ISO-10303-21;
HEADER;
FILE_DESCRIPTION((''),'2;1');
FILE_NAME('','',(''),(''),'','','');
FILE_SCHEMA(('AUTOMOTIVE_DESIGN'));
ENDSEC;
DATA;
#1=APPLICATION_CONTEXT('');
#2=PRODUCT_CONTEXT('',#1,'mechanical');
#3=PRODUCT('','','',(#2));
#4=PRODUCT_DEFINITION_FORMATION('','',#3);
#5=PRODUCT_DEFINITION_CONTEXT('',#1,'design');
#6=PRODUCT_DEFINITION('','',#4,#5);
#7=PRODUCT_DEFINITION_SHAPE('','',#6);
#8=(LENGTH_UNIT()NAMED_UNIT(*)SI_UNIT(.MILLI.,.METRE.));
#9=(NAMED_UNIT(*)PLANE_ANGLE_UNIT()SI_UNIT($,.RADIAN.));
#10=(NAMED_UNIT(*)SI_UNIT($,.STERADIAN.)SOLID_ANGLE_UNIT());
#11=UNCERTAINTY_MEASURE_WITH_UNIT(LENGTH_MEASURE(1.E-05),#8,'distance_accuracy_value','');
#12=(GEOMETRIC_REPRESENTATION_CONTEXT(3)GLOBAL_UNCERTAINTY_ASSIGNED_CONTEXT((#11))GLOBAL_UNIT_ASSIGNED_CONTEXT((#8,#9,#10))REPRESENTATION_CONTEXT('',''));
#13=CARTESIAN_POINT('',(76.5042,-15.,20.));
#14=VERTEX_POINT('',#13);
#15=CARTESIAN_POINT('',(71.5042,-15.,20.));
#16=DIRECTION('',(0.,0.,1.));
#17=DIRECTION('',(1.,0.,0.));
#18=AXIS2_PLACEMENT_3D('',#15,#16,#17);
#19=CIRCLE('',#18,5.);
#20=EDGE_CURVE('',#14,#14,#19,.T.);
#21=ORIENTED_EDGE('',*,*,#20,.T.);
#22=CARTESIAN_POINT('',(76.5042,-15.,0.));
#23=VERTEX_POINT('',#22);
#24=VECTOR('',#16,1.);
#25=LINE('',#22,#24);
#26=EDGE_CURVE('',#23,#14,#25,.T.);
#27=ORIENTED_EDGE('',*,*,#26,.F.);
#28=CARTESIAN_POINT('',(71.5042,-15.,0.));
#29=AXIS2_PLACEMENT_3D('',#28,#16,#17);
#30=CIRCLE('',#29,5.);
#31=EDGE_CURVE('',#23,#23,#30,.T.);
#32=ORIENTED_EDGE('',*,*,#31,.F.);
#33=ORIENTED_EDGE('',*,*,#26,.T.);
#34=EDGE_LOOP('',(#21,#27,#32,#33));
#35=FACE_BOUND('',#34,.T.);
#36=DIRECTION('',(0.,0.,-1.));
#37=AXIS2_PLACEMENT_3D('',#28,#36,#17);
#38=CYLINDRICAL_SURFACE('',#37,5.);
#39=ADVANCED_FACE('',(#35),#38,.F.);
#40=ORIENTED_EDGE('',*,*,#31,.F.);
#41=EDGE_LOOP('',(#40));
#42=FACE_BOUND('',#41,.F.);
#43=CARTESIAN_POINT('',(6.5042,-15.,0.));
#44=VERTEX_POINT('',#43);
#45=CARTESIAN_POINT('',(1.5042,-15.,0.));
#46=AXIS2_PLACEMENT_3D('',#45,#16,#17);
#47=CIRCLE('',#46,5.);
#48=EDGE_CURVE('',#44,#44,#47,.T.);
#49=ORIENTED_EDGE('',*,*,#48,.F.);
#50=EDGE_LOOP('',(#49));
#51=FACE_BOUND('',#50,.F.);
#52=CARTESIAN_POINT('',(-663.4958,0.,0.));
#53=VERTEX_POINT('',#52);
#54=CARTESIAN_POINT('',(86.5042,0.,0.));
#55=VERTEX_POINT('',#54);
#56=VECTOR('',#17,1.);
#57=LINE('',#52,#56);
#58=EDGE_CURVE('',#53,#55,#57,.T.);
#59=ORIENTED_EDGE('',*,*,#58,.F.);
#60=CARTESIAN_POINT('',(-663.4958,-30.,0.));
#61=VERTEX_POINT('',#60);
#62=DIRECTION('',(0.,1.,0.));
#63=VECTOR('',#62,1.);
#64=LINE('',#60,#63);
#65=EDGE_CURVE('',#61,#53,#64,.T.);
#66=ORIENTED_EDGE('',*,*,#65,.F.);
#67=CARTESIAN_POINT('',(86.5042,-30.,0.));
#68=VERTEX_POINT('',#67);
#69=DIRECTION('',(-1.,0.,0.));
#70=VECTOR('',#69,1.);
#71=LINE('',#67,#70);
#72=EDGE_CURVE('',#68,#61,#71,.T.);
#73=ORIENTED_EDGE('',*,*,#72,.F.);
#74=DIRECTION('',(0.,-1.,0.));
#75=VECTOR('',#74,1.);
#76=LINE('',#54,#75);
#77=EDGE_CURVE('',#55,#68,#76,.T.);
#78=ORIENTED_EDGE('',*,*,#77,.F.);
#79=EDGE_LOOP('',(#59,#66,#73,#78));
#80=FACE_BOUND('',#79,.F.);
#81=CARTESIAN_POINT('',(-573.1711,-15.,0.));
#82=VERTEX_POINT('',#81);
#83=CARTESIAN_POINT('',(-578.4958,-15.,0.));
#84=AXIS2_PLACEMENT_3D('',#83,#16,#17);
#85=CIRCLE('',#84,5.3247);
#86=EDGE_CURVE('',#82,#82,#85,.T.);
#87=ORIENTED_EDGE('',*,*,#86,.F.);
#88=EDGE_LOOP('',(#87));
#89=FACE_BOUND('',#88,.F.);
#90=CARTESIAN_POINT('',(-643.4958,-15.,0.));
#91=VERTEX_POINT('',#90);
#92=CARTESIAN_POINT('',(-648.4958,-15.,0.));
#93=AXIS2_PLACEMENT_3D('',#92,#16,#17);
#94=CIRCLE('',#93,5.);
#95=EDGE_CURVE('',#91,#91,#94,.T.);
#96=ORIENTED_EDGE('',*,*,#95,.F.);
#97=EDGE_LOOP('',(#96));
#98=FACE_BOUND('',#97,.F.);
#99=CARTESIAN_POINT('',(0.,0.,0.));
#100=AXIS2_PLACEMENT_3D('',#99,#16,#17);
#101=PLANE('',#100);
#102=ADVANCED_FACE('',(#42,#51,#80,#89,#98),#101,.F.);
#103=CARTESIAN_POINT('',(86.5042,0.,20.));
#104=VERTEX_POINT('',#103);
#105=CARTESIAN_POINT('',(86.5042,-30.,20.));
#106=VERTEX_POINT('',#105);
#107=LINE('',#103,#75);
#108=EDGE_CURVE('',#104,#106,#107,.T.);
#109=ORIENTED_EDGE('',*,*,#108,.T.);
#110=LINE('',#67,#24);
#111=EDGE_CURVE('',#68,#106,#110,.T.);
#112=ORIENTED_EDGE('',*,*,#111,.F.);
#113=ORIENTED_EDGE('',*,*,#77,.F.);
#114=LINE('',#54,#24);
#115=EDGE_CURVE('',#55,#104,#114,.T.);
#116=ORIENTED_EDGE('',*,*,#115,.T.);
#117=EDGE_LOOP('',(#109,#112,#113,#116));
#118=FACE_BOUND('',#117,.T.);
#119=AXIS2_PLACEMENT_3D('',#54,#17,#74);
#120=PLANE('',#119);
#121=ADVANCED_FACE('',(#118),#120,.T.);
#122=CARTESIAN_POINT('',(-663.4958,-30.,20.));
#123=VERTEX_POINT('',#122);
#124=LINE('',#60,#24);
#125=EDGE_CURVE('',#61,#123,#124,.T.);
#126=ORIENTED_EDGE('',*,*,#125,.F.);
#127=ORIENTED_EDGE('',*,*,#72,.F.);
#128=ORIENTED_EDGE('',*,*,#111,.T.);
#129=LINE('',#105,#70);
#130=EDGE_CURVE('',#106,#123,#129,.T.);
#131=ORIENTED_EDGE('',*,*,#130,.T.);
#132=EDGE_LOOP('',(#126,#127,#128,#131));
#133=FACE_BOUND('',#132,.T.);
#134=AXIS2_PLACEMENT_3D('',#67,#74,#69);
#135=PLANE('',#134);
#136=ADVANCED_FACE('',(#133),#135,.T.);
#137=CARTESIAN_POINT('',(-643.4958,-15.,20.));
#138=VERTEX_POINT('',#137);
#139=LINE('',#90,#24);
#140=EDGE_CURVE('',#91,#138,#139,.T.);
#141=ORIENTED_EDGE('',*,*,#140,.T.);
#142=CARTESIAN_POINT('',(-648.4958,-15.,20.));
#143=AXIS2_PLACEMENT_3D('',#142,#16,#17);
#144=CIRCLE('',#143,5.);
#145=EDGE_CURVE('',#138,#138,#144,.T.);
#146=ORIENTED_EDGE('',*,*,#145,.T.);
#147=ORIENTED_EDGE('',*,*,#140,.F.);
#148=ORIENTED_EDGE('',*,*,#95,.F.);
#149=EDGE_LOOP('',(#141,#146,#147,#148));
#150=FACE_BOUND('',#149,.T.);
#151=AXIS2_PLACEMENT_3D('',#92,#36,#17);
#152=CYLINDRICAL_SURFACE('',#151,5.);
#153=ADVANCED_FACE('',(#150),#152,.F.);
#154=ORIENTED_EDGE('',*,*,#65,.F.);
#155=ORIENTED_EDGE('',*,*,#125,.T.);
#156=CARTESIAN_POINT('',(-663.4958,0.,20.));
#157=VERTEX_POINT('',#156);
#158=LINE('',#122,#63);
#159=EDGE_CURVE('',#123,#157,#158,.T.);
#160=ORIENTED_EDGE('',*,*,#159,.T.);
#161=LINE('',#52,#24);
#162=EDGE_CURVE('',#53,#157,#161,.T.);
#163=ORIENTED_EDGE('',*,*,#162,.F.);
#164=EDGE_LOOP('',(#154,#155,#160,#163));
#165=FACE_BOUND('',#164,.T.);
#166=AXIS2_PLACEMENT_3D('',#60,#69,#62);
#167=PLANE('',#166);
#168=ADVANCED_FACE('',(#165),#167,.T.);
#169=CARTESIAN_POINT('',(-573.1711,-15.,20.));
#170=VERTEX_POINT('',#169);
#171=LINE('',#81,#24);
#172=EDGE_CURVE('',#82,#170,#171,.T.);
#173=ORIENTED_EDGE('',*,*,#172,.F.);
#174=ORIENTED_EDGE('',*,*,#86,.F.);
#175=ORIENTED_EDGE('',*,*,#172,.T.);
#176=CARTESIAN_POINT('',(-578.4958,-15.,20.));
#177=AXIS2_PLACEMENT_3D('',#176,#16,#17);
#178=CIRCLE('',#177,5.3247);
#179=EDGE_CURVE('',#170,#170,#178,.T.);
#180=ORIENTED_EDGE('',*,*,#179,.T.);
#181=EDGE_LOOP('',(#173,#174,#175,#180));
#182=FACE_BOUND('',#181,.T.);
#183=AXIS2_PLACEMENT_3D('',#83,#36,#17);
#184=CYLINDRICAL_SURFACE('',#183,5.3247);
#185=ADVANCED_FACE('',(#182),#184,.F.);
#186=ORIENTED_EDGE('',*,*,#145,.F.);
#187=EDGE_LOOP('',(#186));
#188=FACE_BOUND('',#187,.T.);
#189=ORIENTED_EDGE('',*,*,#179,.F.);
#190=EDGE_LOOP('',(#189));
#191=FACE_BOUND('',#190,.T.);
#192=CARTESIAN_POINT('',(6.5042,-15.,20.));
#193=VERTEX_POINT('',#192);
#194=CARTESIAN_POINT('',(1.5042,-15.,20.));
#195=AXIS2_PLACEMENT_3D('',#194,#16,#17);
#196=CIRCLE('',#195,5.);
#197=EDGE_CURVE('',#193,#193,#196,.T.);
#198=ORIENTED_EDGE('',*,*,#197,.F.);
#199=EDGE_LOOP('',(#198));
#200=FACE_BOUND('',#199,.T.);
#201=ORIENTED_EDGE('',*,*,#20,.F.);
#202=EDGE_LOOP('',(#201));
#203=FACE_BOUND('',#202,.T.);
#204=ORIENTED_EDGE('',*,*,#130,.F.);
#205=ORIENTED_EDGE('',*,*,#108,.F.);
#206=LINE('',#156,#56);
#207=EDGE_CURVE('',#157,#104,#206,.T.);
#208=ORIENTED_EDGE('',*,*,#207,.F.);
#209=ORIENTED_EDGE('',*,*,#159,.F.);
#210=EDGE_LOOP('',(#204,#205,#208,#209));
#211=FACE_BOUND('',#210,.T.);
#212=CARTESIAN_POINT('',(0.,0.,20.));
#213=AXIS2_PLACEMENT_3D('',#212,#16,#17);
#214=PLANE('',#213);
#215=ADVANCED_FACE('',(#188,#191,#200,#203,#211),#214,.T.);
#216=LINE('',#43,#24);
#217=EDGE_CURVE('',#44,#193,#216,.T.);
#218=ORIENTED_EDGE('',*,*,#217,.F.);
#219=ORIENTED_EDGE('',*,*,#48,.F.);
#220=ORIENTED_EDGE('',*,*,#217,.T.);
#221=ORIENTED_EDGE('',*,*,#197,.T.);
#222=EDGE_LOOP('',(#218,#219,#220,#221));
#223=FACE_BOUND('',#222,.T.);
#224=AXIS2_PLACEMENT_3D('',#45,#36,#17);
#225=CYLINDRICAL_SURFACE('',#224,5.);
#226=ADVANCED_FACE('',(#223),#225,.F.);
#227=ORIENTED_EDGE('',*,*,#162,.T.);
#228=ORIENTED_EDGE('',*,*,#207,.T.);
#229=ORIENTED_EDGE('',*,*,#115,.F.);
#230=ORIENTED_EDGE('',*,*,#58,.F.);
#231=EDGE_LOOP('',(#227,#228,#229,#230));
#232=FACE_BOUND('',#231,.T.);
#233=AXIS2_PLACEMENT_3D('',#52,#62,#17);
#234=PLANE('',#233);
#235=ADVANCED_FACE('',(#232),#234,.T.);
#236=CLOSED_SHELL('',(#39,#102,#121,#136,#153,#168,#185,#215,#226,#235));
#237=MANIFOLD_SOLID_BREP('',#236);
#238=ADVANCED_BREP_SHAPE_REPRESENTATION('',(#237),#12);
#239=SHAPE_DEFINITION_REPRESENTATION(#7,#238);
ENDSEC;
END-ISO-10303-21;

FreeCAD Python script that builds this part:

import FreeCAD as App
import Part
import Sketcher
from FreeCAD import Vector

doc = App.newDocument("Part")
params = doc.addObject("Spreadsheet::Sheet", "Params")
for row, (alias, value) in enumerate([
    ("sketch1_diameter", "10 mm"),
    ("sketch1_width", "750 mm"),
    ("sketch1_height", "30 mm"),
    ("pad1_length", "20 mm"),
], start=1):
    params.set(f"A{row}", alias)
    params.set(f"B{row}", "=" + value)
    params.setAlias(f"B{row}", alias)

body = doc.addObject("PartDesign::Body", "Body")

# Sketch on XY plane
sketch1 = body.newObject("Sketcher::SketchObject", "Sketch")
sketch1.AttachmentSupport = (doc.getObject("XY_Plane"), [""])
sketch1.MapMode = "FlatFace"
sketch1.addGeometry([
    Part.LineSegment(Vector(-663, -30, 0), Vector(87, -30, 0)),  # 0
    Part.LineSegment(Vector(87, -30, 0), Vector(87, 0, 0)),  # 1
    Part.LineSegment(Vector(87, 0, 0), Vector(-663, 0, 0)),  # 2
    Part.LineSegment(Vector(-663, 0, 0), Vector(-663, -30, 0)),  # 3
    Part.Circle(Vector(-648, -15, 0), Vector(0, 0, 1), 5),  # 4
    Part.Circle(Vector(-578, -15, 0), Vector(0, 0, 1), 5),  # 5
    Part.Circle(Vector(2, -15, 0), Vector(0, 0, 1), 5),  # 6
    Part.Circle(Vector(72, -15, 0), Vector(0, 0, 1), 5),  # 7
], False)
sketch1.addConstraint([
    Sketcher.Constraint("Coincident", 0, 2, 1, 1),
    Sketcher.Constraint("Coincident", 1, 2, 2, 1),
    Sketcher.Constraint("Coincident", 2, 2, 3, 1),
    Sketcher.Constraint("Coincident", 3, 2, 0, 1),
    Sketcher.Constraint("Horizontal", 0),
    Sketcher.Constraint("Vertical", 1),
    Sketcher.Constraint("Horizontal", 2),
    Sketcher.Constraint("Vertical", 3),
    Sketcher.Constraint("Equal", 4, 6),
    Sketcher.Constraint("Equal", 6, 7),
    Sketcher.Constraint("PointOnObject", 1, 2, -1),
    Sketcher.Constraint("Horizontal", 4, 3, 5, 3),
    Sketcher.Constraint("Horizontal", 5, 3, 6, 3),
    Sketcher.Constraint("Horizontal", 6, 3, 7, 3),
    Sketcher.Constraint("Diameter", 4, 10.0),
    Sketcher.Constraint("DistanceX", 0, 1, 0, 2, 750.0),
    Sketcher.Constraint("DistanceY", 1, 1, 1, 2, 30.0),
    Sketcher.Constraint("DistanceY", 4, 3, -1, 1, 15.0),
    Sketcher.Constraint("DistanceX", 4, 3, 5, 3, 70.0),
    Sketcher.Constraint("DistanceX", 6, 3, 7, 3, 70.0),
    Sketcher.Constraint("DistanceX", 7, 3, 0, 2, 15.0),
    Sketcher.Constraint("DistanceX", 2, 2, 4, 3, 15.0),
    Sketcher.Constraint("Diameter", 5, 10.6494),
    Sketcher.Constraint("DistanceX", 4, 3, -1, 1, 648.4958),
])
sketch1.setExpression("Constraints[14]", "Params.sketch1_diameter")
sketch1.setExpression("Constraints[15]", "Params.sketch1_width")
sketch1.setExpression("Constraints[16]", "Params.sketch1_height")
pad1 = body.newObject("PartDesign::Pad", "Pad")
pad1.Profile = sketch1
pad1.setExpression("Length", "Params.pad1_length")

doc.recompute()
